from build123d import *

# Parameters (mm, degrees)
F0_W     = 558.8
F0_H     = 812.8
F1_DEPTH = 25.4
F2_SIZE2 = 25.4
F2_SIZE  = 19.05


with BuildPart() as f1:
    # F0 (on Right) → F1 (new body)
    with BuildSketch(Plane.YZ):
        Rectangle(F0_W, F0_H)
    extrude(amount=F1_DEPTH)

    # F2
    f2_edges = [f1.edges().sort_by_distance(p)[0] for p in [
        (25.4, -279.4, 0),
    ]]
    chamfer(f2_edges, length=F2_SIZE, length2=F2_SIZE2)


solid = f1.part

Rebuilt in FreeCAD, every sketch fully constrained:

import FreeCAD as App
import Part
import Sketcher
Q = App.Units.Quantity


def edges_at(feature, points):
    """Names of the edges that pass closest to the given points."""
    edges = feature.Shape.Edges
    near = lambda p: min(range(len(edges)), key=lambda i: edges[i].distToShape(Part.Vertex(*p))[0])
    return sorted({f"Edge{near(p) + 1}" for p in points})


def add_polygon(sketch, points):
    """Adds a closed chain of lines whose ends are joined by coincident constraints."""
    first, n = sketch.GeometryCount, len(points)
    for a, b in zip(points, points[1:] + points[:1]):
        sketch.addGeometry(Part.LineSegment(App.Vector(*a, 0), App.Vector(*b, 0)), False)
    for i in range(n):
        sketch.addConstraint(Sketcher.Constraint("Coincident", first + i, 2, first + (i + 1) % n, 1))

doc = App.newDocument("Part")
params = doc.addObject("Spreadsheet::Sheet", "Params")
for row, (alias, value) in enumerate([
    ("sketch1_width", "22 in"),
    ("sketch1_height", "32 in"),
    ("pad1_length", "1 in"),
    ("chamfer_size", "0.75 in"),
    ("chamfer_size2", "1 in"),
], start=1):
    params.set(f"A{row}", alias)
    params.set(f"B{row}", "=" + value)
    params.setAlias(f"B{row}", alias)

body = doc.addObject("PartDesign::Body", "Body")

# Sketch on YZ plane
sketch1 = body.newObject("Sketcher::SketchObject", "Sketch")
sketch1.AttachmentSupport = (doc.getObject("YZ_Plane"), [""])
sketch1.MapMode = "FlatFace"
add_polygon(sketch1, [(-279.4, 406.4), (-279.4, -406.4), (279.4, -406.4), (279.4, 406.4)])  # lines 0-3
sketch1.addConstraint([
    Sketcher.Constraint("Vertical", 0),
    Sketcher.Constraint("Horizontal", 1),
    Sketcher.Constraint("Vertical", 2),
    Sketcher.Constraint("Horizontal", 3),
    Sketcher.Constraint("Symmetric", 0, 2, 2, 2, -1, 1),
    Sketcher.Constraint("DistanceX", 1, 1, 1, 2, Q("22 in")),
    Sketcher.Constraint("DistanceY", 0, 2, 0, 1, Q("32 in")),
])
sketch1.setExpression("Constraints[9]", "Params.sketch1_width")
sketch1.setExpression("Constraints[10]", "Params.sketch1_height")
pad1 = body.newObject("PartDesign::Pad", "Pad")
pad1.Profile = sketch1
pad1.setExpression("Length", "Params.pad1_length")
doc.recompute()

chamfer = body.newObject("PartDesign::Chamfer", "Chamfer")
chamfer.Base = (pad1, edges_at(pad1, [(25.4, -279.4, 0)]))
chamfer.ChamferType = "Two distances"
chamfer.setExpression("Size", "Params.chamfer_size")
chamfer.setExpression("Size2", "Params.chamfer_size2")

doc.recompute()
